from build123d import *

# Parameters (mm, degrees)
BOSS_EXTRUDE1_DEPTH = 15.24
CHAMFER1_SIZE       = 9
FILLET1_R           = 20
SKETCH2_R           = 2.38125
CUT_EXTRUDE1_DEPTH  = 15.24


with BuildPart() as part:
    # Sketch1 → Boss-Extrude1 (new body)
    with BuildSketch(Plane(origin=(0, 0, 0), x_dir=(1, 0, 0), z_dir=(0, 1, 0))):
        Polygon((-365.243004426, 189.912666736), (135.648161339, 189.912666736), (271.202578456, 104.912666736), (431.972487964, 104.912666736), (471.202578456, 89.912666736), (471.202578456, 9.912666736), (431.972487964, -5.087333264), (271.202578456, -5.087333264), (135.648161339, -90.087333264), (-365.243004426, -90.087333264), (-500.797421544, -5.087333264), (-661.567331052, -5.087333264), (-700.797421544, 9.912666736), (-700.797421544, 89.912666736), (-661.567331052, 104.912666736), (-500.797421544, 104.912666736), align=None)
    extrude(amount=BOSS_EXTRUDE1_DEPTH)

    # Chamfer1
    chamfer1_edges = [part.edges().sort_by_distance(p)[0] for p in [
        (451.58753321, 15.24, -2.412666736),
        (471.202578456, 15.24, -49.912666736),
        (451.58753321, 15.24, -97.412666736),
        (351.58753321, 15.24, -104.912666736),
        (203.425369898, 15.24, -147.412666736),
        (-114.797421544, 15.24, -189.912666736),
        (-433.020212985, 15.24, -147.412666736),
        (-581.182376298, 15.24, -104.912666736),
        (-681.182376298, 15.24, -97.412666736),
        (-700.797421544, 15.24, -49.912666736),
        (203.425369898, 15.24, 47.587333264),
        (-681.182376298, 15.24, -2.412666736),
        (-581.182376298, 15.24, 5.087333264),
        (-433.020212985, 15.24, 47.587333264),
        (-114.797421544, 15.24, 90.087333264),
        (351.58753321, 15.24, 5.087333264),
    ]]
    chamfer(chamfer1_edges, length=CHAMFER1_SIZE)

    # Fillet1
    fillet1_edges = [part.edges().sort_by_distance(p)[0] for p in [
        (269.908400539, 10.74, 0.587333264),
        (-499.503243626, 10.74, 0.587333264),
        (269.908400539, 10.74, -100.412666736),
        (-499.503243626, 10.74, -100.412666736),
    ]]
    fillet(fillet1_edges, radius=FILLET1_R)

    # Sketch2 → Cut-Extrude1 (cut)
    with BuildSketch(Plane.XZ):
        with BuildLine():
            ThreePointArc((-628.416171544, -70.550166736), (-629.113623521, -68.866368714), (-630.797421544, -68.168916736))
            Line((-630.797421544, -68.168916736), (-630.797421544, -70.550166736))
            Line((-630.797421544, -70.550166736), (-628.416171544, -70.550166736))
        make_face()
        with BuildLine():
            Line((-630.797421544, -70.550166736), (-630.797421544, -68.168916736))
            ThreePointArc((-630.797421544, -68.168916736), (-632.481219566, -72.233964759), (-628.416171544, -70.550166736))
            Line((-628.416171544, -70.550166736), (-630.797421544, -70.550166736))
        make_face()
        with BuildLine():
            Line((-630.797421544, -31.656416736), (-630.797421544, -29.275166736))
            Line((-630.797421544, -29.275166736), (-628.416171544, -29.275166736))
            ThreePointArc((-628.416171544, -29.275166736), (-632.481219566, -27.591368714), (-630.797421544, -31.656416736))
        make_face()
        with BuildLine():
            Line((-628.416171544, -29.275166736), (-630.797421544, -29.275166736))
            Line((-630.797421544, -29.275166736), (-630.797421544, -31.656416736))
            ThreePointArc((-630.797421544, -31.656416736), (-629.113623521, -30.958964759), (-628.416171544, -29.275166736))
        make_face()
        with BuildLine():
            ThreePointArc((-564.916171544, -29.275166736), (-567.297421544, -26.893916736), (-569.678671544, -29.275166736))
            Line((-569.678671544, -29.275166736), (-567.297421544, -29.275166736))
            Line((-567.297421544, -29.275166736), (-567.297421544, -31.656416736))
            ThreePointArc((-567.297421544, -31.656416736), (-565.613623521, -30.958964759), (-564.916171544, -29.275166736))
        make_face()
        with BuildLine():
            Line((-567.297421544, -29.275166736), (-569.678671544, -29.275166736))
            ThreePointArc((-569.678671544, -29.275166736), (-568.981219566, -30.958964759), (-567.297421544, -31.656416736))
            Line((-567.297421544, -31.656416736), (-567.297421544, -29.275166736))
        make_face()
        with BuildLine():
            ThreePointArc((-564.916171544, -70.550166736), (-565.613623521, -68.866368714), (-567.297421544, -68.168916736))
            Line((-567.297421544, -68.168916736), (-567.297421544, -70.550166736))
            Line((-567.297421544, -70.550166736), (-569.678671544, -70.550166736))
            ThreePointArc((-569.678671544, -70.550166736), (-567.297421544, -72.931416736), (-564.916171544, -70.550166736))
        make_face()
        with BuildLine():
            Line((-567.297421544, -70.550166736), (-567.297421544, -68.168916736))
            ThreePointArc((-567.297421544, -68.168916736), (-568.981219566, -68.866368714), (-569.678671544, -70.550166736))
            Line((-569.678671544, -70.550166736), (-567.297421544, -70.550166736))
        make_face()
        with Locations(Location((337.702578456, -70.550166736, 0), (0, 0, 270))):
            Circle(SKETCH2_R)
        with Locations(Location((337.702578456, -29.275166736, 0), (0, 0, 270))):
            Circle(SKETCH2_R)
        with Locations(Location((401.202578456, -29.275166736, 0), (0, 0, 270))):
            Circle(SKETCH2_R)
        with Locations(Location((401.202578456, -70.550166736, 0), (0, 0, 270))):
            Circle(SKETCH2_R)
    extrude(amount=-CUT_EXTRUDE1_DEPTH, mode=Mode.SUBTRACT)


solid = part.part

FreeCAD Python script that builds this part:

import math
import FreeCAD as App
import Part
import Sketcher
from FreeCAD import Vector


def edges_at(feature, points):
    """Names of the edges that pass closest to the given points."""
    edges = feature.Shape.Edges
    near = lambda p: min(range(len(edges)), key=lambda i: edges[i].distToShape(Part.Vertex(*p))[0])
    return sorted({f"Edge{near(p) + 1}" for p in points})

doc = App.newDocument("Part")
body = doc.addObject("PartDesign::Body", "Body")

sketch1 = body.newObject("Sketcher::SketchObject", "Sketch")
sketch1.AttachmentSupport = (doc.getObject("XZ_Plane"), [""])
sketch1.MapMode = "FlatFace"
sketch1.addGeometry(Part.LineSegment(Vector(136, -190, 0), Vector(-365, -190, 0)), False)
sketch1.addGeometry(Part.LineSegment(Vector(-365, -190, 0), Vector(-501, -105, 0)), False)
sketch1.addGeometry(Part.LineSegment(Vector(-501, -105, 0), Vector(-662, -105, 0)), False)
sketch1.addGeometry(Part.LineSegment(Vector(-662, -105, 0), Vector(-701, -90, 0)), False)
sketch1.addGeometry(Part.LineSegment(Vector(-701, -90, 0), Vector(-701, -10, 0)), False)
sketch1.addGeometry(Part.LineSegment(Vector(-701, -10, 0), Vector(-662, 5, 0)), False)
sketch1.addGeometry(Part.LineSegment(Vector(-662, 5, 0), Vector(-501, 5, 0)), False)
sketch1.addGeometry(Part.LineSegment(Vector(-501, 5, 0), Vector(-365, 90, 0)), False)
sketch1.addGeometry(Part.LineSegment(Vector(-365, 90, 0), Vector(136, 90, 0)), False)
sketch1.addGeometry(Part.LineSegment(Vector(136, 90, 0), Vector(271, 5, 0)), False)
sketch1.addGeometry(Part.LineSegment(Vector(271, 5, 0), Vector(432, 5, 0)), False)
sketch1.addGeometry(Part.LineSegment(Vector(432, 5, 0), Vector(471, -10, 0)), False)
sketch1.addGeometry(Part.LineSegment(Vector(471, -10, 0), Vector(471, -90, 0)), False)
sketch1.addGeometry(Part.LineSegment(Vector(471, -90, 0), Vector(432, -105, 0)), False)
sketch1.addGeometry(Part.LineSegment(Vector(432, -105, 0), Vector(271, -105, 0)), False)
sketch1.addGeometry(Part.LineSegment(Vector(271, -105, 0), Vector(136, -190, 0)), False)
sketch1.addConstraint(Sketcher.Constraint("Coincident", 0, 2, 1, 1))
sketch1.addConstraint(Sketcher.Constraint("Coincident", 1, 2, 2, 1))
sketch1.addConstraint(Sketcher.Constraint("Coincident", 2, 2, 3, 1))
sketch1.addConstraint(Sketcher.Constraint("Coincident", 3, 2, 4, 1))
sketch1.addConstraint(Sketcher.Constraint("Coincident", 4, 2, 5, 1))
sketch1.addConstraint(Sketcher.Constraint("Coincident", 5, 2, 6, 1))
sketch1.addConstraint(Sketcher.Constraint("Coincident", 6, 2, 7, 1))
sketch1.addConstraint(Sketcher.Constraint("Coincident", 7, 2, 8, 1))
sketch1.addConstraint(Sketcher.Constraint("Coincident", 8, 2, 9, 1))
sketch1.addConstraint(Sketcher.Constraint("Coincident", 9, 2, 10, 1))
sketch1.addConstraint(Sketcher.Constraint("Coincident", 10, 2, 11, 1))
sketch1.addConstraint(Sketcher.Constraint("Coincident", 11, 2, 12, 1))
sketch1.addConstraint(Sketcher.Constraint("Coincident", 12, 2, 13, 1))
sketch1.addConstraint(Sketcher.Constraint("Coincident", 13, 2, 14, 1))
sketch1.addConstraint(Sketcher.Constraint("Coincident", 14, 2, 15, 1))
sketch1.addConstraint(Sketcher.Constraint("Coincident", 15, 2, 0, 1))
sketch1.addConstraint(Sketcher.Constraint("Horizontal", 0))
sketch1.addConstraint(Sketcher.Constraint("Horizontal", 2))
sketch1.addConstraint(Sketcher.Constraint("Vertical", 4))
sketch1.addConstraint(Sketcher.Constraint("Horizontal", 6))
sketch1.addConstraint(Sketcher.Constraint("Horizontal", 8))
sketch1.addConstraint(Sketcher.Constraint("Horizontal", 10))
sketch1.addConstraint(Sketcher.Constraint("Vertical", 12))
sketch1.addConstraint(Sketcher.Constraint("Horizontal", 14))
sketch1.addConstraint(Sketcher.Constraint("Parallel", 1, 9))
sketch1.addConstraint(Sketcher.Constraint("Parallel", 3, 11))
sketch1.addConstraint(Sketcher.Constraint("Parallel", 5, 13))
sketch1.addConstraint(Sketcher.Constraint("Parallel", 7, 15))
sketch1.addConstraint(Sketcher.Constraint("Horizontal", 6, 2, 9, 2))
sketch1.addConstraint(Sketcher.Constraint("Horizontal", 4, 2, 11, 2))
sketch1.addConstraint(Sketcher.Constraint("Horizontal", 3, 2, 12, 2))
sketch1.addConstraint(Sketcher.Constraint("Horizontal", 2, 2, 13, 2))
sketch1.addConstraint(Sketcher.Constraint("Vertical", 2, 2, 5, 2))
sketch1.addConstraint(Sketcher.Constraint("Vertical", 1, 2, 6, 2))
sketch1.addConstraint(Sketcher.Constraint("Vertical", 0, 2, 7, 2))
sketch1.addConstraint(Sketcher.Constraint("Vertical", 10, 2, 13, 2))
sketch1.addConstraint(Sketcher.Constraint("Vertical", 9, 2, 14, 2))
sketch1.addConstraint(Sketcher.Constraint("Vertical", 8, 2, 15, 2))
sketch1.addConstraint(Sketcher.Constraint("Equal", 6, 10))
sketch1.addConstraint(Sketcher.Constraint("DistanceY", 4, 1, 4, 2, 80.0))
sketch1.addConstraint(Sketcher.Constraint("Distance", 1, 160.0))
sketch1.addConstraint(Sketcher.Constraint("Distance", 3, 42.0))
sketch1.addConstraint(Sketcher.Constraint("DistanceY", 0, 2, 1, 2, 85.0))
sketch1.addConstraint(Sketcher.Constraint("DistanceY", 2, 2, 3, 2, 15.0))
sketch1.addConstraint(Sketcher.Constraint("DistanceX", 3, 2, 1, 2, 200.0))
sketch1.addConstraint(Sketcher.Constraint("DistanceX", 6, 2, 9, 2, 772.0))
sketch1.addConstraint(Sketcher.Constraint("DistanceX", 1, 2, -1, 1, 500.797422))
sketch1.addConstraint(Sketcher.Constraint("DistanceY", 0, 2, -1, 1, 189.912667))
pad1 = body.newObject("PartDesign::Pad", "Pad")
pad1.Profile = sketch1
pad1.Length = 15.24
pad1.Reversed = True
doc.recompute()

chamfer = body.newObject("PartDesign::Chamfer", "Chamfer")
chamfer.Base = (pad1, edges_at(pad1, [
    (451.588, 15.24, -2.413),
    (471.203, 15.24, -49.913),
    (451.588, 15.24, -97.413),
    (351.588, 15.24, -104.913),
    (203.425, 15.24, -147.413),
    (-114.797, 15.24, -189.913),
    (-433.02, 15.24, -147.413),
    (-581.182, 15.24, -104.913),
    (-681.182, 15.24, -97.413),
    (-700.797, 15.24, -49.913),
    (203.425, 15.24, 47.587),
    (-681.182, 15.24, -2.413),
    (-581.182, 15.24, 5.087),
    (-433.02, 15.24, 47.587),
    (-114.797, 15.24, 90.087),
    (351.588, 15.24, 5.087),
]))
chamfer.Size = 9
doc.recompute()

fillet = body.newObject("PartDesign::Fillet", "Fillet")
fillet.Base = (chamfer, edges_at(chamfer, [
    (269.908, 10.74, 0.587),
    (-499.503, 10.74, 0.587),
    (269.908, 10.74, -100.413),
    (-499.503, 10.74, -100.413),
]))
fillet.Radius = 20

sketch2 = body.newObject("Sketcher::SketchObject", "Sketch001")
sketch2.AttachmentSupport = (doc.getObject("XZ_Plane"), [""])
sketch2.MapMode = "FlatFace"
sketch2.addGeometry(Part.ArcOfCircle(Part.Circle(Vector(-630.8, -70.6, 0), Vector(0, 0, 1), 2.4), math.radians(0), math.radians(90)), False)
sketch2.addGeometry(Part.ArcOfCircle(Part.Circle(Vector(-630.8, -70.6, 0), Vector(0, 0, 1), 2.4), math.radians(90), math.radians(360)), False)
sketch2.addGeometry(Part.ArcOfCircle(Part.Circle(Vector(-630.8, -29.3, 0), Vector(0, 0, 1), 2.4), math.radians(0), math.radians(270)), False)
sketch2.addGeometry(Part.ArcOfCircle(Part.Circle(Vector(-630.8, -29.3, 0), Vector(0, 0, 1), 2.4), math.radians(-90), math.radians(0)), False)
sketch2.addGeometry(Part.ArcOfCircle(Part.Circle(Vector(-567.3, -29.3, 0), Vector(0, 0, 1), 2.4), math.radians(0), math.radians(180)), False)
sketch2.addGeometry(Part.ArcOfCircle(Part.Circle(Vector(-567.3, -29.3, 0), Vector(0, 0, 1), 2.4), math.radians(-180), math.radians(-90)), False)
sketch2.addGeometry(Part.ArcOfCircle(Part.Circle(Vector(-567.3, -29.3, 0), Vector(0, 0, 1), 2.4), math.radians(-90), math.radians(0)), False)
sketch2.addGeometry(Part.ArcOfCircle(Part.Circle(Vector(-567.3, -70.6, 0), Vector(0, 0, 1), 2.4), math.radians(0), math.radians(90)), False)
sketch2.addGeometry(Part.ArcOfCircle(Part.Circle(Vector(-567.3, -70.6, 0), Vector(0, 0, 1), 2.4), math.radians(90), math.radians(180)), False)
sketch2.addGeometry(Part.ArcOfCircle(Part.Circle(Vector(-567.3, -70.6, 0), Vector(0, 0, 1), 2.4), math.radians(180), math.radians(360)), False)
sketch2.addGeometry(Part.Circle(Vector(337.7, -70.6, 0), Vector(0, 0, 1), 2.4), False)
sketch2.addGeometry(Part.Circle(Vector(337.7, -29.3, 0), Vector(0, 0, 1), 2.4), False)
sketch2.addGeometry(Part.Circle(Vector(401.2, -29.3, 0), Vector(0, 0, 1), 2.4), False)
sketch2.addGeometry(Part.Circle(Vector(401.2, -70.6, 0), Vector(0, 0, 1), 2.4), False)
sketch2.addConstraint(Sketcher.Constraint("Tangent", 0, 1, 1, 2))
sketch2.addConstraint(Sketcher.Constraint("Coincident", 1, 1, 0, 2))
sketch2.addConstraint(Sketcher.Constraint("Tangent", 2, 1, 3, 2))
sketch2.addConstraint(Sketcher.Constraint("Coincident", 3, 1, 2, 2))
sketch2.addConstraint(Sketcher.Constraint("Tangent", 4, 2, 5, 1))
sketch2.addConstraint(Sketcher.Constraint("Tangent", 5, 2, 6, 1))
sketch2.addConstraint(Sketcher.Constraint("Tangent", 6, 2, 4, 1))
sketch2.addConstraint(Sketcher.Constraint("Tangent", 7, 2, 8, 1))
sketch2.addConstraint(Sketcher.Constraint("Tangent", 8, 2, 9, 1))
sketch2.addConstraint(Sketcher.Constraint("Tangent", 9, 2, 7, 1))
sketch2.addConstraint(Sketcher.Constraint("Equal", 1, 2))
sketch2.addConstraint(Sketcher.Constraint("Equal", 3, 4))
sketch2.addConstraint(Sketcher.Constraint("Equal", 6, 7))
sketch2.addConstraint(Sketcher.Constraint("Equal", 9, 10))
sketch2.addConstraint(Sketcher.Constraint("Equal", 10, 11))
sketch2.addConstraint(Sketcher.Constraint("Equal", 11, 12))
sketch2.addConstraint(Sketcher.Constraint("Equal", 12, 13))
sketch2.addConstraint(Sketcher.Constraint("Horizontal", 3, 3, 4, 3))
sketch2.addConstraint(Sketcher.Constraint("Horizontal", 1, 3, 7, 3))
sketch2.addConstraint(Sketcher.Constraint("Horizontal", 9, 3, 10, 3))
sketch2.addConstraint(Sketcher.Constraint("Horizontal", 6, 3, 11, 3))
sketch2.addConstraint(Sketcher.Constraint("Horizontal", 11, 3, 12, 3))
sketch2.addConstraint(Sketcher.Constraint("Horizontal", 10, 3, 13, 3))
sketch2.addConstraint(Sketcher.Constraint("Horizontal", 13, 3, 0, 1))
sketch2.addConstraint(Sketcher.Constraint("Horizontal", 12, 3, 2, 1))
sketch2.addConstraint(Sketcher.Constraint("Horizontal", 2, 1, 4, 2))
sketch2.addConstraint(Sketcher.Constraint("Horizontal", 4, 2, 6, 2))
sketch2.addConstraint(Sketcher.Constraint("Horizontal", 0, 1, 8, 2))
sketch2.addConstraint(Sketcher.Constraint("Horizontal", 8, 2, 9, 2))
sketch2.addConstraint(Sketcher.Constraint("Vertical", 1, 3, 2, 3))
sketch2.addConstraint(Sketcher.Constraint("Vertical", 6, 3, 7, 3))
sketch2.addConstraint(Sketcher.Constraint("Vertical", 10, 3, 11, 3))
sketch2.addConstraint(Sketcher.Constraint("Vertical", 12, 3, 13, 3))
sketch2.addConstraint(Sketcher.Constraint("Vertical", 3, 3, 1, 1))
sketch2.addConstraint(Sketcher.Constraint("Vertical", 1, 1, 3, 1))
sketch2.addConstraint(Sketcher.Constraint("Vertical", 9, 3, 5, 2))
sketch2.addConstraint(Sketcher.Constraint("Vertical", 5, 2, 7, 2))
sketch2.addConstraint(Sketcher.Constraint("DistanceX", 8, 3, 10, 3, 905.0))
sketch2.addConstraint(Sketcher.Constraint("Diameter", 10, 4.7625))
sketch2.addConstraint(Sketcher.Constraint("DistanceX", 3, 3, 4, 3, 63.5))
sketch2.addConstraint(Sketcher.Constraint("DistanceX", 11, 3, 12, 3, 63.5))
sketch2.addConstraint(Sketcher.Constraint("DistanceY", 1, 3, 2, 3, 41.275))
sketch2.addConstraint(Sketcher.Constraint("DistanceX", 0, 3, -1, 1, 630.797422))
sketch2.addConstraint(Sketcher.Constraint("DistanceY", 0, 3, -1, 1, 70.550167))
pocket1 = body.newObject("PartDesign::Pocket", "Pocket")
pocket1.Profile = sketch2
pocket1.Length = 15.24

doc.recompute()
